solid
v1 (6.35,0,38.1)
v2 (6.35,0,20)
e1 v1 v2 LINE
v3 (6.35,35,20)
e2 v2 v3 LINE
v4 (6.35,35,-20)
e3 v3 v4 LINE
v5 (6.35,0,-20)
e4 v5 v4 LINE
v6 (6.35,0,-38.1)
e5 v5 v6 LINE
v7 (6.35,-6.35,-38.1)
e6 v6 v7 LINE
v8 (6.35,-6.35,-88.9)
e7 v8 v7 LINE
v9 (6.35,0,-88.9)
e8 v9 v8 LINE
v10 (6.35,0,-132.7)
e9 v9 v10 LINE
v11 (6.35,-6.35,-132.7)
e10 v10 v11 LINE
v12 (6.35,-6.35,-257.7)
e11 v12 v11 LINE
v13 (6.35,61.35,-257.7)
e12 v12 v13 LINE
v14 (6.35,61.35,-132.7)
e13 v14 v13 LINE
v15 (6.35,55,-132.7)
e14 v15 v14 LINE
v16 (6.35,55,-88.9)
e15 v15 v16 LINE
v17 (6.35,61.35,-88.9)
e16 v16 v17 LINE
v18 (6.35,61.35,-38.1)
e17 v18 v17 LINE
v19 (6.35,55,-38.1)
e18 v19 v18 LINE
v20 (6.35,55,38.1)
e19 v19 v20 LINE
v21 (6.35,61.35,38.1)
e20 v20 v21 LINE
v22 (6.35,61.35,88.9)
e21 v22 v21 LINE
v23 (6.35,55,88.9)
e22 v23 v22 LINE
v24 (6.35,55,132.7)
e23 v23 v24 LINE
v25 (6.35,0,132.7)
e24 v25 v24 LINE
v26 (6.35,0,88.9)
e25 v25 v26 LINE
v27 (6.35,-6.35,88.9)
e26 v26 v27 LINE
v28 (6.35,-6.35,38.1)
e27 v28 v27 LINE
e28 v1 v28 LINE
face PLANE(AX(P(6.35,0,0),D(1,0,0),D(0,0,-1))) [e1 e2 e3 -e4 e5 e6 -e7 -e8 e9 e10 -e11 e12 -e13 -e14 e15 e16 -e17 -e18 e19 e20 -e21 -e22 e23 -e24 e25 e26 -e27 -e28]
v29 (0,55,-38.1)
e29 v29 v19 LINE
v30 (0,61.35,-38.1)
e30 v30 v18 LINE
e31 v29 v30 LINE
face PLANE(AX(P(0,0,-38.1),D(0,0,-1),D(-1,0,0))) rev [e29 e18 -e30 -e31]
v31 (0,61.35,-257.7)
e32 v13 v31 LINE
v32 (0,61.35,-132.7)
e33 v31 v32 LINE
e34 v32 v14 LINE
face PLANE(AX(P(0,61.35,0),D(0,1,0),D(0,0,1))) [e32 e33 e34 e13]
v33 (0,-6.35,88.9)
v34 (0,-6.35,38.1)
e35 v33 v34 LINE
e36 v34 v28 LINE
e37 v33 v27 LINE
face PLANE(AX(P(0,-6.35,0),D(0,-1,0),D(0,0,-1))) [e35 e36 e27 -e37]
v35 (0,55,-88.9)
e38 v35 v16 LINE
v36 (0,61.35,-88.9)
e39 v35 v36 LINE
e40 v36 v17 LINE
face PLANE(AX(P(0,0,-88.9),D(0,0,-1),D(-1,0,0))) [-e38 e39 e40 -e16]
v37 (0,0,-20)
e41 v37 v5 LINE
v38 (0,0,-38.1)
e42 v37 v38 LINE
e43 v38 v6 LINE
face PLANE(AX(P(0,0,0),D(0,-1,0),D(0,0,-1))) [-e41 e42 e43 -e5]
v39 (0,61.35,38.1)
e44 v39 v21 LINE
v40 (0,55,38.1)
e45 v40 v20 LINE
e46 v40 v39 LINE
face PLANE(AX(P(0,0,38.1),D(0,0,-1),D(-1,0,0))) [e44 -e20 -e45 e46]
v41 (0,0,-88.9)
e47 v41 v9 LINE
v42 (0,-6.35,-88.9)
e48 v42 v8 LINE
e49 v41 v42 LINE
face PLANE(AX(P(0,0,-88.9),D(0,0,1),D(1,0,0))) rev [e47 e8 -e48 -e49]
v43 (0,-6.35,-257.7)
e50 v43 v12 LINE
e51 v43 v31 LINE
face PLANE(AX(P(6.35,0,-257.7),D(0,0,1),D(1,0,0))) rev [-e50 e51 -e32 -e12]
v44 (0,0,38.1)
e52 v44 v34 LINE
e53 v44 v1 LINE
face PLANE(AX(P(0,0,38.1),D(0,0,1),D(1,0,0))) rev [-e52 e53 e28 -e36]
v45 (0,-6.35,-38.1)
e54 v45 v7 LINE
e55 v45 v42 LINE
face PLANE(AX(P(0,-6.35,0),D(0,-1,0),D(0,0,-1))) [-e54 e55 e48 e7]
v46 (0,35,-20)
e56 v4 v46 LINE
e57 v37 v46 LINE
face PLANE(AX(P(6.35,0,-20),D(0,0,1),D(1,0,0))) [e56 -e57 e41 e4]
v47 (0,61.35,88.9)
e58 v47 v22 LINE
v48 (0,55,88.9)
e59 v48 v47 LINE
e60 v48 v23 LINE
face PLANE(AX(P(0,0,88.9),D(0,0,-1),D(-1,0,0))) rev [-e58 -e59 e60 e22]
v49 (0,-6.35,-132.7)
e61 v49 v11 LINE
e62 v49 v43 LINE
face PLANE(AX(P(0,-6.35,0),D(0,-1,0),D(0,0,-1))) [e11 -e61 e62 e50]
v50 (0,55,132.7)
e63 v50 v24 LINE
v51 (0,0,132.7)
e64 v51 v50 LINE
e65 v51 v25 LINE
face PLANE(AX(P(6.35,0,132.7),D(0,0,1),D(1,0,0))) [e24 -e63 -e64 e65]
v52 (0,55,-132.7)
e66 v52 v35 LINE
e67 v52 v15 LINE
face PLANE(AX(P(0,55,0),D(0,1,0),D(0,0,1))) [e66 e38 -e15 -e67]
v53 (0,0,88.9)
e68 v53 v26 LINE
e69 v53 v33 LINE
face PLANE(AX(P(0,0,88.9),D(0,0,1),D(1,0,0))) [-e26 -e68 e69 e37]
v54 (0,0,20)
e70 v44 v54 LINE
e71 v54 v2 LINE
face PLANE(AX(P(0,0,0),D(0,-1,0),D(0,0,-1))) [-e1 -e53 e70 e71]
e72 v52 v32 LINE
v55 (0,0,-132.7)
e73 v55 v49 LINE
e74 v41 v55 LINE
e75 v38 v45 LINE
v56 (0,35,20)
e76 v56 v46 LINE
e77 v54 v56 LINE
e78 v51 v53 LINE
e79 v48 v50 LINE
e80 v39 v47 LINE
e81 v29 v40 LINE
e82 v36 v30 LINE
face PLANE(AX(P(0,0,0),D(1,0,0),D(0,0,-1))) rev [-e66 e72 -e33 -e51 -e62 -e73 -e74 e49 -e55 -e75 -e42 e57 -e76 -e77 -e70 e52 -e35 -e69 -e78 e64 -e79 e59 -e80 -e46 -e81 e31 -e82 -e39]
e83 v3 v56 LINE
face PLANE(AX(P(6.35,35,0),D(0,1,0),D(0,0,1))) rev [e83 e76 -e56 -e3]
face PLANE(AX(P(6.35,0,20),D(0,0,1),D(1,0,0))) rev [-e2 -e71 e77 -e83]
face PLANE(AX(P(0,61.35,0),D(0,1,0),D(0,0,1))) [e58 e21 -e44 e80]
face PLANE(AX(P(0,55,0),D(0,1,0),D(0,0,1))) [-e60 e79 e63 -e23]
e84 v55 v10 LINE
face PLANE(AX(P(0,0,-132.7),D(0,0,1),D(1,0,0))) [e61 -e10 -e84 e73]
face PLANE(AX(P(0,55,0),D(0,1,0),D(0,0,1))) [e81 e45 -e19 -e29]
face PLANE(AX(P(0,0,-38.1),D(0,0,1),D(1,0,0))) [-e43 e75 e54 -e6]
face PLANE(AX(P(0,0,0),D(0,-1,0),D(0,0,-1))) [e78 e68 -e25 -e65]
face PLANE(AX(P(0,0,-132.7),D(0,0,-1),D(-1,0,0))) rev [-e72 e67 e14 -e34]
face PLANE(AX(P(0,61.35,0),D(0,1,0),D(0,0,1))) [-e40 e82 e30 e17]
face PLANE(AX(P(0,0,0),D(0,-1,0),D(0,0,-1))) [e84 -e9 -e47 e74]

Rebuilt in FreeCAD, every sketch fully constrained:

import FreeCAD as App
import Part
import Sketcher

V = App.Vector

doc = App.newDocument("Part")
body = doc.addObject("PartDesign::Body", "Body")

sketch1 = body.newObject("Sketcher::SketchObject", "Sketch")
sketch1.AttachmentSupport = (doc.getObject("YZ_Plane"), [""])
sketch1.MapMode = "FlatFace"
sketch1.addGeometry(Part.LineSegment(V(55, 132.7, 0), V(0, 132.7, 0)), False)
sketch1.addGeometry(Part.LineSegment(V(0, 132.7, 0), V(0, 20, 0)), False)
sketch1.addGeometry(Part.LineSegment(V(0, 20, 0), V(35, 20, 0)), False)
sketch1.addGeometry(Part.LineSegment(V(35, 20, 0), V(35, -20, 0)), False)
sketch1.addGeometry(Part.LineSegment(V(35, -20, 0), V(0, -20, 0)), False)
sketch1.addGeometry(Part.LineSegment(V(0, -20, 0), V(0, -257.7, 0)), False)
sketch1.addGeometry(Part.LineSegment(V(0, -257.7, 0), V(55, -257.7, 0)), False)
sketch1.addGeometry(Part.LineSegment(V(55, -257.7, 0), V(55, 132.7, 0)), False)
sketch1.addConstraint(Sketcher.Constraint("Coincident", 0, 2, 1, 1))
sketch1.addConstraint(Sketcher.Constraint("Coincident", 1, 2, 2, 1))
sketch1.addConstraint(Sketcher.Constraint("Coincident", 2, 2, 3, 1))
sketch1.addConstraint(Sketcher.Constraint("Coincident", 3, 2, 4, 1))
sketch1.addConstraint(Sketcher.Constraint("Coincident", 4, 2, 5, 1))
sketch1.addConstraint(Sketcher.Constraint("Coincident", 5, 2, 6, 1))
sketch1.addConstraint(Sketcher.Constraint("Coincident", 6, 2, 7, 1))
sketch1.addConstraint(Sketcher.Constraint("Coincident", 7, 2, 0, 1))
sketch1.addConstraint(Sketcher.Constraint("Horizontal", 0))
sketch1.addConstraint(Sketcher.Constraint("Vertical", 1))
sketch1.addConstraint(Sketcher.Constraint("Horizontal", 2))
sketch1.addConstraint(Sketcher.Constraint("Vertical", 3))
sketch1.addConstraint(Sketcher.Constraint("Horizontal", 4))
sketch1.addConstraint(Sketcher.Constraint("Vertical", 5))
sketch1.addConstraint(Sketcher.Constraint("Horizontal", 6))
sketch1.addConstraint(Sketcher.Constraint("Vertical", 7))
sketch1.addConstraint(Sketcher.Constraint("Symmetric", 1, 2, 4, 2, -1, 1))
sketch1.addConstraint(Sketcher.Constraint("PointOnObject", 0, 2, -2))
sketch1.addConstraint(Sketcher.Constraint("DistanceX", 0, 2, 0, 1, 55.0))
sketch1.addConstraint(Sketcher.Constraint("DistanceX", 2, 1, 2, 2, 35.0))
sketch1.addConstraint(Sketcher.Constraint("DistanceY", 3, 2, 3, 1, 40.0))
sketch1.addConstraint(Sketcher.Constraint("DistanceY", 1, 2, 1, 1, 112.7))
sketch1.addConstraint(Sketcher.Constraint("DistanceY", 5, 2, 5, 1, 237.7))
pad1 = body.newObject("PartDesign::Pad", "Pad")
pad1.Profile = sketch1
pad1.Length = 6.35

sketch2 = body.newObject("Sketcher::SketchObject", "Sketch001")
sketch2.AttachmentSupport = (doc.getObject("XZ_Plane"), [""])
sketch2.MapMode = "FlatFace"
sketch2.addGeometry(Part.LineSegment(V(0, -20, 0), V(0, -257.7, 0)), False)
sketch2.addGeometry(Part.LineSegment(V(0, -257.7, 0), V(6.35, -257.7, 0)), False)
sketch2.addGeometry(Part.LineSegment(V(6.35, -257.7, 0), V(6.35, -20, 0)), False)
sketch2.addGeometry(Part.LineSegment(V(6.35, -20, 0), V(0, -20, 0)), False)
sketch2.addGeometry(Part.LineSegment(V(0, 132.7, 0), V(0, 20, 0)), False)
sketch2.addGeometry(Part.LineSegment(V(0, 20, 0), V(6.35, 20, 0)), False)
sketch2.addGeometry(Part.LineSegment(V(6.35, 20, 0), V(6.35, 132.7, 0)), False)
sketch2.addGeometry(Part.LineSegment(V(6.35, 132.7, 0), V(0, 132.7, 0)), False)
sketch2.addConstraint(Sketcher.Constraint("Coincident", 0, 2, 1, 1))
sketch2.addConstraint(Sketcher.Constraint("Coincident", 1, 2, 2, 1))
sketch2.addConstraint(Sketcher.Constraint("Coincident", 2, 2, 3, 1))
sketch2.addConstraint(Sketcher.Constraint("Coincident", 3, 2, 0, 1))
sketch2.addConstraint(Sketcher.Constraint("Coincident", 4, 2, 5, 1))
sketch2.addConstraint(Sketcher.Constraint("Coincident", 5, 2, 6, 1))
sketch2.addConstraint(Sketcher.Constraint("Coincident", 6, 2, 7, 1))
sketch2.addConstraint(Sketcher.Constraint("Coincident", 7, 2, 4, 1))
sketch2.addConstraint(Sketcher.Constraint("Vertical", 0))
sketch2.addConstraint(Sketcher.Constraint("Horizontal", 1))
sketch2.addConstraint(Sketcher.Constraint("Vertical", 2))
sketch2.addConstraint(Sketcher.Constraint("Horizontal", 3))
sketch2.addConstraint(Sketcher.Constraint("Vertical", 4))
sketch2.addConstraint(Sketcher.Constraint("Horizontal", 5))
sketch2.addConstraint(Sketcher.Constraint("Vertical", 6))
sketch2.addConstraint(Sketcher.Constraint("Horizontal", 7))
sketch2.addConstraint(Sketcher.Constraint("Symmetric", 3, 2, 4, 2, -1, 1))
sketch2.addConstraint(Sketcher.Constraint("PointOnObject", 0, 2, -2))
sketch2.addConstraint(Sketcher.Constraint("Vertical", 2, 2, 5, 2))
sketch2.addConstraint(Sketcher.Constraint("DistanceY", 0, 2, 0, 1, 237.7))
sketch2.addConstraint(Sketcher.Constraint("DistanceY", 4, 2, 4, 1, 112.7))
sketch2.addConstraint(Sketcher.Constraint("DistanceY", 2, 2, -1, 1, 20.0))
sketch2.addConstraint(Sketcher.Constraint("DistanceX", 1, 1, 1, 2, 6.35))
pad2 = body.newObject("PartDesign::Pad", "Pad001")
pad2.Profile = sketch2
pad2.Length = 6.35

sketch3 = body.newObject("Sketcher::SketchObject", "Sketch002")
sketch3.AttachmentSupport = (doc.getObject("XZ_Plane"), [""])
sketch3.MapMode = "FlatFace"
sketch3.AttachmentOffset = App.Placement(V(0, 0, -55), App.Rotation())
sketch3.addGeometry(Part.LineSegment(V(0, -257.7, 0), V(0, 132.7, 0)), False)
sketch3.addGeometry(Part.LineSegment(V(0, 132.7, 0), V(6.35, 132.7, 0)), False)
sketch3.addGeometry(Part.LineSegment(V(6.35, 132.7, 0), V(6.35, -257.7, 0)), False)
sketch3.addGeometry(Part.LineSegment(V(6.35, -257.7, 0), V(0, -257.7, 0)), False)
sketch3.addConstraint(Sketcher.Constraint("Coincident", 0, 2, 1, 1))
sketch3.addConstraint(Sketcher.Constraint("Coincident", 1, 2, 2, 1))
sketch3.addConstraint(Sketcher.Constraint("Coincident", 2, 2, 3, 1))
sketch3.addConstraint(Sketcher.Constraint("Coincident", 3, 2, 0, 1))
sketch3.addConstraint(Sketcher.Constraint("Vertical", 0))
sketch3.addConstraint(Sketcher.Constraint("Horizontal", 1))
sketch3.addConstraint(Sketcher.Constraint("Vertical", 2))
sketch3.addConstraint(Sketcher.Constraint("Horizontal", 3))
sketch3.addConstraint(Sketcher.Constraint("PointOnObject", 0, 2, -2))
sketch3.addConstraint(Sketcher.Constraint("DistanceY", 0, 1, 0, 2, 390.4))
sketch3.addConstraint(Sketcher.Constraint("DistanceX", 1, 1, 1, 2, 6.35))
sketch3.addConstraint(Sketcher.Constraint("DistanceY", -1, 1, 0, 2, 132.7))
pad3 = body.newObject("PartDesign::Pad", "Pad002")
pad3.Profile = sketch3
pad3.Length = 6.35
pad3.Reversed = True

sketch4 = body.newObject("Sketcher::SketchObject", "Sketch003")
sketch4.AttachmentSupport = (doc.getObject("YZ_Plane"), [""])
sketch4.MapMode = "FlatFace"
sketch4.AttachmentOffset = App.Placement(V(0, 0, 6.35), App.Rotation())
sketch4.addGeometry(Part.LineSegment(V(55, 132.7, 0), V(55, 88.9, 0)), False)
sketch4.addGeometry(Part.LineSegment(V(55, 88.9, 0), V(61.35, 88.9, 0)), False)
sketch4.addGeometry(Part.LineSegment(V(61.35, 88.9, 0), V(61.35, 132.7, 0)), False)
sketch4.addGeometry(Part.LineSegment(V(61.35, 132.7, 0), V(55, 132.7, 0)), False)
sketch4.addGeometry(Part.LineSegment(V(0, 88.9, 0), V(0, 132.7, 0)), False)
sketch4.addGeometry(Part.LineSegment(V(0, 132.7, 0), V(-6.35, 132.7, 0)), False)
sketch4.addGeometry(Part.LineSegment(V(-6.35, 132.7, 0), V(-6.35, 88.9, 0)), False)
sketch4.addGeometry(Part.LineSegment(V(-6.35, 88.9, 0), V(0, 88.9, 0)), False)
sketch4.addGeometry(Part.LineSegment(V(61.35, 38.1, 0), V(55, 38.1, 0)), False)
sketch4.addGeometry(Part.LineSegment(V(55, 38.1, 0), V(55, -38.1, 0)), False)
sketch4.addGeometry(Part.LineSegment(V(55, -38.1, 0), V(61.35, -38.1, 0)), False)
sketch4.addGeometry(Part.LineSegment(V(61.35, -38.1, 0), V(61.35, 38.1, 0)), False)
sketch4.addGeometry(Part.LineSegment(V(0, -20, 0), V(-6.35, -20, 0)), False)
sketch4.addGeometry(Part.LineSegment(V(-6.35, -20, 0), V(-6.35, -38.1, 0)), False)
sketch4.addGeometry(Part.LineSegment(V(-6.35, -38.1, 0), V(0, -38.1, 0)), False)
sketch4.addGeometry(Part.LineSegment(V(0, -38.1, 0), V(0, -20, 0)), False)
sketch4.addGeometry(Part.LineSegment(V(0, 38.1, 0), V(-6.35, 38.1, 0)), False)
sketch4.addGeometry(Part.LineSegment(V(-6.35, 38.1, 0), V(-6.35, 20, 0)), False)
sketch4.addGeometry(Part.LineSegment(V(-6.35, 20, 0), V(0, 20, 0)), False)
sketch4.addGeometry(Part.LineSegment(V(0, 20, 0), V(0, 38.1, 0)), False)
sketch4.addGeometry(Part.LineSegment(V(61.35, -88.9, 0), V(55, -88.9, 0)), False)
sketch4.addGeometry(Part.LineSegment(V(55, -88.9, 0), V(55, -132.7, 0)), False)
sketch4.addGeometry(Part.LineSegment(V(55, -132.7, 0), V(61.35, -132.7, 0)), False)
sketch4.addGeometry(Part.LineSegment(V(61.35, -132.7, 0), V(61.35, -88.9, 0)), False)
sketch4.addGeometry(Part.LineSegment(V(0, -88.9, 0), V(-6.35, -88.9, 0)), False)
sketch4.addGeometry(Part.LineSegment(V(-6.35, -88.9, 0), V(-6.35, -132.7, 0)), False)
sketch4.addGeometry(Part.LineSegment(V(-6.35, -132.7, 0), V(0, -132.7, 0)), False)
sketch4.addGeometry(Part.LineSegment(V(0, -132.7, 0), V(0, -88.9, 0)), False)
sketch4.addConstraint(Sketcher.Constraint("Coincident", 0, 2, 1, 1))
sketch4.addConstraint(Sketcher.Constraint("Coincident", 1, 2, 2, 1))
sketch4.addConstraint(Sketcher.Constraint("Coincident", 2, 2, 3, 1))
sketch4.addConstraint(Sketcher.Constraint("Coincident", 3, 2, 0, 1))
sketch4.addConstraint(Sketcher.Constraint("Coincident", 4, 2, 5, 1))
sketch4.addConstraint(Sketcher.Constraint("Coincident", 5, 2, 6, 1))
sketch4.addConstraint(Sketcher.Constraint("Coincident", 6, 2, 7, 1))
sketch4.addConstraint(Sketcher.Constraint("Coincident", 7, 2, 4, 1))
sketch4.addConstraint(Sketcher.Constraint("Coincident", 8, 2, 9, 1))
sketch4.addConstraint(Sketcher.Constraint("Coincident", 9, 2, 10, 1))
sketch4.addConstraint(Sketcher.Constraint("Coincident", 10, 2, 11, 1))
sketch4.addConstraint(Sketcher.Constraint("Coincident", 11, 2, 8, 1))
sketch4.addConstraint(Sketcher.Constraint("Coincident", 12, 2, 13, 1))
sketch4.addConstraint(Sketcher.Constraint("Coincident", 13, 2, 14, 1))
sketch4.addConstraint(Sketcher.Constraint("Coincident", 14, 2, 15, 1))
sketch4.addConstraint(Sketcher.Constraint("Coincident", 15, 2, 12, 1))
sketch4.addConstraint(Sketcher.Constraint("Coincident", 16, 2, 17, 1))
sketch4.addConstraint(Sketcher.Constraint("Coincident", 17, 2, 18, 1))
sketch4.addConstraint(Sketcher.Constraint("Coincident", 18, 2, 19, 1))
sketch4.addConstraint(Sketcher.Constraint("Coincident", 19, 2, 16, 1))
sketch4.addConstraint(Sketcher.Constraint("Coincident", 20, 2, 21, 1))
sketch4.addConstraint(Sketcher.Constraint("Coincident", 21, 2, 22, 1))
sketch4.addConstraint(Sketcher.Constraint("Coincident", 22, 2, 23, 1))
sketch4.addConstraint(Sketcher.Constraint("Coincident", 23, 2, 20, 1))
sketch4.addConstraint(Sketcher.Constraint("Coincident", 24, 2, 25, 1))
sketch4.addConstraint(Sketcher.Constraint("Coincident", 25, 2, 26, 1))
sketch4.addConstraint(Sketcher.Constraint("Coincident", 26, 2, 27, 1))
sketch4.addConstraint(Sketcher.Constraint("Coincident", 27, 2, 24, 1))
sketch4.addConstraint(Sketcher.Constraint("Vertical", 0))
sketch4.addConstraint(Sketcher.Constraint("Horizontal", 1))
sketch4.addConstraint(Sketcher.Constraint("Vertical", 2))
sketch4.addConstraint(Sketcher.Constraint("Horizontal", 3))
sketch4.addConstraint(Sketcher.Constraint("Vertical", 4))
sketch4.addConstraint(Sketcher.Constraint("Horizontal", 5))
sketch4.addConstraint(Sketcher.Constraint("Vertical", 6))
sketch4.addConstraint(Sketcher.Constraint("Horizontal", 7))
sketch4.addConstraint(Sketcher.Constraint("Horizontal", 8))
sketch4.addConstraint(Sketcher.Constraint("Vertical", 9))
sketch4.addConstraint(Sketcher.Constraint("Horizontal", 10))
sketch4.addConstraint(Sketcher.Constraint("Vertical", 11))
sketch4.addConstraint(Sketcher.Constraint("Horizontal", 12))
sketch4.addConstraint(Sketcher.Constraint("Vertical", 13))
sketch4.addConstraint(Sketcher.Constraint("Horizontal", 14))
sketch4.addConstraint(Sketcher.Constraint("Vertical", 15))
sketch4.addConstraint(Sketcher.Constraint("Horizontal", 16))
sketch4.addConstraint(Sketcher.Constraint("Vertical", 17))
sketch4.addConstraint(Sketcher.Constraint("Horizontal", 18))
sketch4.addConstraint(Sketcher.Constraint("Vertical", 19))
sketch4.addConstraint(Sketcher.Constraint("Horizontal", 20))
sketch4.addConstraint(Sketcher.Constraint("Vertical", 21))
sketch4.addConstraint(Sketcher.Constraint("Horizontal", 22))
sketch4.addConstraint(Sketcher.Constraint("Vertical", 23))
sketch4.addConstraint(Sketcher.Constraint("Horizontal", 24))
sketch4.addConstraint(Sketcher.Constraint("Vertical", 25))
sketch4.addConstraint(Sketcher.Constraint("Horizontal", 26))
sketch4.addConstraint(Sketcher.Constraint("Vertical", 27))
sketch4.addConstraint(Sketcher.Constraint("Symmetric", 15, 2, 18, 2, -1, 1))
sketch4.addConstraint(Sketcher.Constraint("Symmetric", 4, 2, 26, 2, -1, 1))
sketch4.addConstraint(Sketcher.Constraint("Symmetric", 13, 2, 16, 2, -1))
sketch4.addConstraint(Sketcher.Constraint("Symmetric", 0, 2, 20, 2, -1))
sketch4.addConstraint(Sketcher.Constraint("Symmetric", 2, 2, 22, 2, -1))
sketch4.addConstraint(Sketcher.Constraint("Symmetric", 6, 2, 24, 2, -1))
sketch4.addConstraint(Sketcher.Constraint("PointOnObject", 4, 2, -2))
sketch4.addConstraint(Sketcher.Constraint("PointOnObject", 14, 2, -2))
sketch4.addConstraint(Sketcher.Constraint("Horizontal", 3, 2, 4, 2))
sketch4.addConstraint(Sketcher.Constraint("Horizontal", 1, 2, 6, 2))
sketch4.addConstraint(Sketcher.Constraint("Horizontal", 10, 2, 13, 2))
sketch4.addConstraint(Sketcher.Constraint("Horizontal", 11, 2, 16, 2))
sketch4.addConstraint(Sketcher.Constraint("Vertical", 3, 2, 8, 2))
sketch4.addConstraint(Sketcher.Constraint("Vertical", 2, 2, 10, 2))
sketch4.addConstraint(Sketcher.Constraint("Vertical", 6, 2, 12, 2))
sketch4.addConstraint(Sketcher.Constraint("Equal", 3, 5))
sketch4.addConstraint(Sketcher.Constraint("DistanceY", 0, 2, 0, 1, 43.8))
sketch4.addConstraint(Sketcher.Constraint("DistanceY", 9, 2, 9, 1, 76.2))
sketch4.addConstraint(Sketcher.Constraint("DistanceY", 13, 2, 13, 1, 18.1))
sketch4.addConstraint(Sketcher.Constraint("DistanceX", -1, 1, 0, 2, 55.0))
sketch4.addConstraint(Sketcher.Constraint("DistanceY", 9, 2, 0, 2, 127.0))
sketch4.addConstraint(Sketcher.Constraint("DistanceX", 1, 1, 1, 2, 6.35))
pocket1 = body.newObject("PartDesign::Pocket", "Pocket")
pocket1.Profile = sketch4
pocket1.Type = "ThroughAll"

doc.recompute()
